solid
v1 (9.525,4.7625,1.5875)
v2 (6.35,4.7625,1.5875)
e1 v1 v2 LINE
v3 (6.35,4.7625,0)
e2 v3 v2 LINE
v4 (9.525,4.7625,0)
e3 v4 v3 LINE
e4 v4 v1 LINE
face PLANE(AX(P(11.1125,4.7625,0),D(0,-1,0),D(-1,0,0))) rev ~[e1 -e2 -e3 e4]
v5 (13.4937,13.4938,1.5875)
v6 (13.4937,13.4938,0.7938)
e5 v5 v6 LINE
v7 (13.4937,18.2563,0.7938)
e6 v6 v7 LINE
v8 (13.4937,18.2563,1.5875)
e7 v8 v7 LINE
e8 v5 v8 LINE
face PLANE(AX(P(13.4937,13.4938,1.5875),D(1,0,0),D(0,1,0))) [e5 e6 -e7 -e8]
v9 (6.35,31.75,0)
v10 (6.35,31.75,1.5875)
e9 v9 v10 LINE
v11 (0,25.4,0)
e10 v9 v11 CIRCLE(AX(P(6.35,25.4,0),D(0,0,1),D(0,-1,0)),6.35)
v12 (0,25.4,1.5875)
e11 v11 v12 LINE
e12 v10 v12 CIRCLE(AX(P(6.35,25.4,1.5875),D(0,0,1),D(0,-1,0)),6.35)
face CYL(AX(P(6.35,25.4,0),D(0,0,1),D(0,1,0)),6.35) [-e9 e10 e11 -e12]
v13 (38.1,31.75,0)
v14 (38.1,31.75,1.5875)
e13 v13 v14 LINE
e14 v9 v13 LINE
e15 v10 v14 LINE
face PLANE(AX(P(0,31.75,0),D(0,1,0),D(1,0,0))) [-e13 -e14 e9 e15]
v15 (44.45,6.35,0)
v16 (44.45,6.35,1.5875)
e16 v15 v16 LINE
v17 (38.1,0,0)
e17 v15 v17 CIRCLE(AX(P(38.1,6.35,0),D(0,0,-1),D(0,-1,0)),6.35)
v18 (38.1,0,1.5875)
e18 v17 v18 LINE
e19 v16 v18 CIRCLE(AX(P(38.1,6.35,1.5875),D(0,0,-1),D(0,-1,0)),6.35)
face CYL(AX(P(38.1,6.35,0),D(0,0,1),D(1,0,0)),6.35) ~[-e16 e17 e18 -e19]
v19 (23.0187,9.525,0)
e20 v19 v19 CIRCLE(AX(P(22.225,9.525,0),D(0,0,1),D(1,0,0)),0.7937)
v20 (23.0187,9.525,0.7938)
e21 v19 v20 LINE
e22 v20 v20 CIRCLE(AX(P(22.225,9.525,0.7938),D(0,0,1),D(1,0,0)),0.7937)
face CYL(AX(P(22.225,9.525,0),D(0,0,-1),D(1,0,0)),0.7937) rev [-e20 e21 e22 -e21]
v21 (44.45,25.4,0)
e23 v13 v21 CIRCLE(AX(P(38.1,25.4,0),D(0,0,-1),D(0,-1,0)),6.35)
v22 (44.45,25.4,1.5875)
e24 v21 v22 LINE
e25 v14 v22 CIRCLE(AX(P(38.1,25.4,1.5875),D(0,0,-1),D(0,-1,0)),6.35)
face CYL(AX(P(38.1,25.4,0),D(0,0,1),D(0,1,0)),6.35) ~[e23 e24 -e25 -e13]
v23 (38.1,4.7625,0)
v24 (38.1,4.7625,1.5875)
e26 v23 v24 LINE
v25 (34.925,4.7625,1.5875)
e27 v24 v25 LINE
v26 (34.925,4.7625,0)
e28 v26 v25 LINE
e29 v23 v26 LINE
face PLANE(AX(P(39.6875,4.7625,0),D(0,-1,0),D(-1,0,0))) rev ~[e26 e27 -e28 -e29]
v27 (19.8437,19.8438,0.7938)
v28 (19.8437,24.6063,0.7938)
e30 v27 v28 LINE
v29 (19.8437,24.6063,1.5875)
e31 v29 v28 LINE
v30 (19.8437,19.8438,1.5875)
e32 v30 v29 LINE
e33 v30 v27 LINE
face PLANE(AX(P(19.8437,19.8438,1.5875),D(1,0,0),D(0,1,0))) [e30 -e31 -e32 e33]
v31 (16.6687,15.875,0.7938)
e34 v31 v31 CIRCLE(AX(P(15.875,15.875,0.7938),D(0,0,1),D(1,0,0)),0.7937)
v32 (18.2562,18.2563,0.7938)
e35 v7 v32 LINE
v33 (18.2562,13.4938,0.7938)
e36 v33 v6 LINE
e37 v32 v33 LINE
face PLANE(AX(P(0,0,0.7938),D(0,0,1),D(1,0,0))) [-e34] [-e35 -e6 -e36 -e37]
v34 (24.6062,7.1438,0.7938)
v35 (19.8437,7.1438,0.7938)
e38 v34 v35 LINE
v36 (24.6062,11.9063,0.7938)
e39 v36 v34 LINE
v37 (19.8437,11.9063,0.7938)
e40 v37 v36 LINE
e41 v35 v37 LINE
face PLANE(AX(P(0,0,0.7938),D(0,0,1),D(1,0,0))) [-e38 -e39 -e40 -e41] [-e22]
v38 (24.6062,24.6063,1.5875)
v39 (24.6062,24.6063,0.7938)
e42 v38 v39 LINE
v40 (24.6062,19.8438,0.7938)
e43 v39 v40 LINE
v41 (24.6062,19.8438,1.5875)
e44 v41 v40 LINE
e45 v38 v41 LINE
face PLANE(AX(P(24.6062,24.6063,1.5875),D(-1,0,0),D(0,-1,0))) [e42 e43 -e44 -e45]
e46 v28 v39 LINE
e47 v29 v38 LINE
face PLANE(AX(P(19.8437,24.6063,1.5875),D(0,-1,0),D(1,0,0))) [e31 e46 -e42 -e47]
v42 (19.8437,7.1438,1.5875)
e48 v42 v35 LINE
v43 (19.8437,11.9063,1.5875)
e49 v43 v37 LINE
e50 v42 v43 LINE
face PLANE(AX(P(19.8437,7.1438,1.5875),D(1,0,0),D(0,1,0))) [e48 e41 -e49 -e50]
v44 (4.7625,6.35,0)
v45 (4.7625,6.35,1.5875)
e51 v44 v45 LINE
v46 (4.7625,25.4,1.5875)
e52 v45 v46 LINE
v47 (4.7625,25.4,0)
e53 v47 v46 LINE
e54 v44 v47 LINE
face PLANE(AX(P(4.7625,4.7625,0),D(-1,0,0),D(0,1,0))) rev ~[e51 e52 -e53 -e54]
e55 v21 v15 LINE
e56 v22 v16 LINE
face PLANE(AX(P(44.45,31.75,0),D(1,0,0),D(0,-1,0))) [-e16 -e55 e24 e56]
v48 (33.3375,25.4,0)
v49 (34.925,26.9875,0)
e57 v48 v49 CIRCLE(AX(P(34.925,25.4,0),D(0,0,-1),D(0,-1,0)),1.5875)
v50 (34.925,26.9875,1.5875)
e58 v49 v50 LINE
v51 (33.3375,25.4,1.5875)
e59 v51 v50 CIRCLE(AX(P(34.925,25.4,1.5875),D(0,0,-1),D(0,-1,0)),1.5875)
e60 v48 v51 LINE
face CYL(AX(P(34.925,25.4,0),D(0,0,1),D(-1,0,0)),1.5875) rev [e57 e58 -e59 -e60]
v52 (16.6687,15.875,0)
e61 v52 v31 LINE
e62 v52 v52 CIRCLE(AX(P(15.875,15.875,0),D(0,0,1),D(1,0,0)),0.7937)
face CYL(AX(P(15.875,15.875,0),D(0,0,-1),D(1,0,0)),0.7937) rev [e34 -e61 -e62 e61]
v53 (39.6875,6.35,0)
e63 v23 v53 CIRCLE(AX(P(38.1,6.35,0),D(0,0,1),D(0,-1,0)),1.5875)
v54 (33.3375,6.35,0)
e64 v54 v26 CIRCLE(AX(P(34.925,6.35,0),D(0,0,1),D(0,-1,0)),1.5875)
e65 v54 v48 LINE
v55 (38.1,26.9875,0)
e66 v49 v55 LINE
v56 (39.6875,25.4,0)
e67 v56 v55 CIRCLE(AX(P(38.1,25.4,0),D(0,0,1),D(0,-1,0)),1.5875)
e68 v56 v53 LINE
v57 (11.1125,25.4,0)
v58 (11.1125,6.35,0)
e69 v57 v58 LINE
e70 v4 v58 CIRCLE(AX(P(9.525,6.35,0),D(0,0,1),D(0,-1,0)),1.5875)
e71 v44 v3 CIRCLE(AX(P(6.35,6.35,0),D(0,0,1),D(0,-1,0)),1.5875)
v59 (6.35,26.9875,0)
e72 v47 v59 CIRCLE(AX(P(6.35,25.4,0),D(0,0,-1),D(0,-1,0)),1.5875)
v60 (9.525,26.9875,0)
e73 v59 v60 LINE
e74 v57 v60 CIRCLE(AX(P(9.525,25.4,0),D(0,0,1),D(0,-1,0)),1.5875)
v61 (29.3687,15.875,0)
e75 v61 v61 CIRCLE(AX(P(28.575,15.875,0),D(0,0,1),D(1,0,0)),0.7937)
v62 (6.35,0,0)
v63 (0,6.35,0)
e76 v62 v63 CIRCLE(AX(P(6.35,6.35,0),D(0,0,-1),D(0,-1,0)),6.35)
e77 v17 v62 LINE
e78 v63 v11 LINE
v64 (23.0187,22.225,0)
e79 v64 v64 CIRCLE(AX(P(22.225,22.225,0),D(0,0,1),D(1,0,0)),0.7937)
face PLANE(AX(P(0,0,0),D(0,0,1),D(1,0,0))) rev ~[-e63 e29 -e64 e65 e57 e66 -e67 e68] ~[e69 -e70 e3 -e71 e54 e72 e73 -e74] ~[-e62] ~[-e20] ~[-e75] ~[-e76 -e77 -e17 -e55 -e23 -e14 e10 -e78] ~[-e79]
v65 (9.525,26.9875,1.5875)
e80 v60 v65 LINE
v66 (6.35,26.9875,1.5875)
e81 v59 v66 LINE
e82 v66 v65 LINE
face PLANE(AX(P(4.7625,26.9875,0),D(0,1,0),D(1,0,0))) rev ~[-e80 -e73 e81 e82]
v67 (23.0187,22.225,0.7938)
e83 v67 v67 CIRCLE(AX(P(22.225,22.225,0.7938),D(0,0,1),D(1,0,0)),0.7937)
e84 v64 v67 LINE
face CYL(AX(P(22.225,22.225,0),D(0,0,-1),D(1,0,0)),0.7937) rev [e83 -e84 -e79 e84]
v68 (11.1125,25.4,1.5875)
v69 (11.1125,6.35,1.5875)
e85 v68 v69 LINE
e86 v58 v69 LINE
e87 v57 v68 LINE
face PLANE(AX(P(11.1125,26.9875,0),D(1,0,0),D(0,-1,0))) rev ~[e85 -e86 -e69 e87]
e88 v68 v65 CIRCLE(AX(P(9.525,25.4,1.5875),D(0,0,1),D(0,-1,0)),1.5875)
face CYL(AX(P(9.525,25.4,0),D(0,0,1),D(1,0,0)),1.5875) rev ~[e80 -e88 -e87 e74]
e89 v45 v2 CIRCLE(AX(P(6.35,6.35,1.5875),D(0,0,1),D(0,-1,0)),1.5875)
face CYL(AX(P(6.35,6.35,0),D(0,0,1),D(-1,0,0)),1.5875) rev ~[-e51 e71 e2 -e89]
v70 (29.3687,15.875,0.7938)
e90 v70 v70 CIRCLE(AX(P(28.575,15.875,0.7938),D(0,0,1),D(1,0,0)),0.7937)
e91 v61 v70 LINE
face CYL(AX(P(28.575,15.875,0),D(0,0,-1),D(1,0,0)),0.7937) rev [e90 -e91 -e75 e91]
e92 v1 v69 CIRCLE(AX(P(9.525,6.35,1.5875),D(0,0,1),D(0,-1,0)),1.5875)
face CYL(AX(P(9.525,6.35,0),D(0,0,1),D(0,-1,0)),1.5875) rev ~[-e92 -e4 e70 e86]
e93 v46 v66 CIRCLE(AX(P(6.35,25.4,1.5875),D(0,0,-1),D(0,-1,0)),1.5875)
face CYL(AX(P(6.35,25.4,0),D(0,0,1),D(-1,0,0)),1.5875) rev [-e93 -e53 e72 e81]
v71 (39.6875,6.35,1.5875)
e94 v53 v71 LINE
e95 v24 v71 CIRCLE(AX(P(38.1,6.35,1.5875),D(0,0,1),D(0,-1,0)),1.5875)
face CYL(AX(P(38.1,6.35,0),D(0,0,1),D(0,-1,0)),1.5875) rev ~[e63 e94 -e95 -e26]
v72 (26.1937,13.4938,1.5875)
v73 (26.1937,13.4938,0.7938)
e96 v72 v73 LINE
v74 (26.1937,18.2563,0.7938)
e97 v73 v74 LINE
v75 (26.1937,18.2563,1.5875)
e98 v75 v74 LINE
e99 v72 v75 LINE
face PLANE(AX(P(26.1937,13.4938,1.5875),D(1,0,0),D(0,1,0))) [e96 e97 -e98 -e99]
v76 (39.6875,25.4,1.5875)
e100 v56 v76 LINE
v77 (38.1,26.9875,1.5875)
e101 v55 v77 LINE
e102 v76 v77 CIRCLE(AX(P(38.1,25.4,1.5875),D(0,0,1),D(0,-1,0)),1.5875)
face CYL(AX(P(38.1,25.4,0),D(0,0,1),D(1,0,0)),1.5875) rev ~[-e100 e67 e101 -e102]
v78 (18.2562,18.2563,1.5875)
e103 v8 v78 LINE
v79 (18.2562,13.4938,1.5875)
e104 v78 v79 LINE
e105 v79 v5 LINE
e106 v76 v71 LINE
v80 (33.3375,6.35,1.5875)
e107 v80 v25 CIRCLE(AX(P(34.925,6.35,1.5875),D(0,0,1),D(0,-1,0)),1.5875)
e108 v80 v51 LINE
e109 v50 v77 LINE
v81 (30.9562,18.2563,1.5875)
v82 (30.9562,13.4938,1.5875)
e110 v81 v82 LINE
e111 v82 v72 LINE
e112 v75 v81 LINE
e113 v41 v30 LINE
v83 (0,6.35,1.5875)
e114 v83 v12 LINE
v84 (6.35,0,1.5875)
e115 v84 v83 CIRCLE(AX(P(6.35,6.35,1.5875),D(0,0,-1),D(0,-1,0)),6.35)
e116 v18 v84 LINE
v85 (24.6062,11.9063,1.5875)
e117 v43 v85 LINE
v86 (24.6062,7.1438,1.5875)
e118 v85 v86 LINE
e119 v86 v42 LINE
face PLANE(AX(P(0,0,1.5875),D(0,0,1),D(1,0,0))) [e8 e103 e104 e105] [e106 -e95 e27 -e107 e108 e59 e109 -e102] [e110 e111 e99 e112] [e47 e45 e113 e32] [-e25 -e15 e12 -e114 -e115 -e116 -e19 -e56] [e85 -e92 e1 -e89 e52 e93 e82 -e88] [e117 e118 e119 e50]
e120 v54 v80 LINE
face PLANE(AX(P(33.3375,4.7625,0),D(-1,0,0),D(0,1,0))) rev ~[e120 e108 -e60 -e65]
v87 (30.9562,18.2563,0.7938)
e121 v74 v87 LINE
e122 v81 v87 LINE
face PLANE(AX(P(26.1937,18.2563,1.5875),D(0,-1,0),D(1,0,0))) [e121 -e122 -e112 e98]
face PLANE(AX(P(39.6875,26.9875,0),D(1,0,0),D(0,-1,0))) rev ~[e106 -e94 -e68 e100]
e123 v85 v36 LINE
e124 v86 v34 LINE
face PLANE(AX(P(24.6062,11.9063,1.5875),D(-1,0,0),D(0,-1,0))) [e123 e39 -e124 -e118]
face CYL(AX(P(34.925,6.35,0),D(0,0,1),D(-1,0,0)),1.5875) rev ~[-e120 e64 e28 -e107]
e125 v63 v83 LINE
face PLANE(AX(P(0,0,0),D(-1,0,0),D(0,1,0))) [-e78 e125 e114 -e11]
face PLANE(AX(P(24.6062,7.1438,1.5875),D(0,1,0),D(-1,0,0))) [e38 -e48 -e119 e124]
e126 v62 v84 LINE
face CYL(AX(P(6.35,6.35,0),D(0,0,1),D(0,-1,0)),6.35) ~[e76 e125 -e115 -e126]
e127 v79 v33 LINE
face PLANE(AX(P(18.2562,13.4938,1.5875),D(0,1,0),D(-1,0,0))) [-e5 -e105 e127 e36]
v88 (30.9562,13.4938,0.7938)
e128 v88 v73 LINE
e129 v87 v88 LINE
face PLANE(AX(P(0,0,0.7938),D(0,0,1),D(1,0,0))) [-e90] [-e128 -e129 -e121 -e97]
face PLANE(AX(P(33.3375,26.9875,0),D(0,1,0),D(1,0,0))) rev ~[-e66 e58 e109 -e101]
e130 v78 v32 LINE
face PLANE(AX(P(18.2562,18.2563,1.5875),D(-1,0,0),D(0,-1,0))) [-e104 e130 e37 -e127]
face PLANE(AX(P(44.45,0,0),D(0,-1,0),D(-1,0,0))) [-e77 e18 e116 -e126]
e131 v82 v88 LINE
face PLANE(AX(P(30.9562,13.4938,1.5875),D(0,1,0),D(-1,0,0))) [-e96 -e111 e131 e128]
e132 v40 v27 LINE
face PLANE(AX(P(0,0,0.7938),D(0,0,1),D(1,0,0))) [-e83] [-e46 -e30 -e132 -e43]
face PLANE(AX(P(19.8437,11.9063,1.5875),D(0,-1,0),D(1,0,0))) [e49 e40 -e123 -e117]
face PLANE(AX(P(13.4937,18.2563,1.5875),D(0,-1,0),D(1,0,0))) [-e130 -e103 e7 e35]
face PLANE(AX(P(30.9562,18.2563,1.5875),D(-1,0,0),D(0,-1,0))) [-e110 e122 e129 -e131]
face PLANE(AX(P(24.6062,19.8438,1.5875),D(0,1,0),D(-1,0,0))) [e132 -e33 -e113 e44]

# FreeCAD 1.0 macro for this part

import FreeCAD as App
import Part
import Sketcher

V = App.Vector
Q = App.Units.Quantity


def edges_at(feature, points):
    """Names of the edges that pass closest to the given points."""
    edges = feature.Shape.Edges
    near = lambda p: min(range(len(edges)), key=lambda i: edges[i].distToShape(Part.Vertex(*p))[0])
    return sorted({f"Edge{near(p) + 1}" for p in points})

doc = App.newDocument("Part")
body = doc.addObject("PartDesign::Body", "Body")

# Sketch on XY plane
sketch1 = doc.addObject("Sketcher::SketchObject", "Sketch")
body.addObject(sketch1)
sketch1.AttachmentSupport = (doc.XY_Plane, [""])
sketch1.MapMode = "FlatFace"
sketch1.addGeometry(Part.LineSegment(V(44.5, 31.8, 0), V(0, 31.8, 0)), False)
sketch1.addGeometry(Part.LineSegment(V(0, 31.8, 0), V(0, 0, 0)), False)
sketch1.addGeometry(Part.LineSegment(V(0, 0, 0), V(44.5, 0, 0)), False)
sketch1.addGeometry(Part.LineSegment(V(44.5, 0, 0), V(44.5, 31.8, 0)), False)
sketch1.addGeometry(Part.Circle(V(22.2, 9.5, 0), V(0, 0, 1), 0.8), False)
sketch1.addGeometry(Part.LineSegment(V(4.8, 4.8, 0), V(4.8, 27, 0)), False)
sketch1.addGeometry(Part.LineSegment(V(4.8, 27, 0), V(11.1, 27, 0)), False)
sketch1.addGeometry(Part.LineSegment(V(11.1, 27, 0), V(11.1, 4.8, 0)), False)
sketch1.addGeometry(Part.LineSegment(V(11.1, 4.8, 0), V(4.8, 4.8, 0)), False)
sketch1.addGeometry(Part.Circle(V(15.9, 15.9, 0), V(0, 0, 1), 0.8), False)
sketch1.addGeometry(Part.Circle(V(28.6, 15.9, 0), V(0, 0, 1), 0.8), False)
sketch1.addGeometry(Part.Circle(V(22.2, 22.2, 0), V(0, 0, 1), 0.8), False)
sketch1.addGeometry(Part.LineSegment(V(33.3, 4.8, 0), V(33.3, 27, 0)), False)
sketch1.addGeometry(Part.LineSegment(V(33.3, 27, 0), V(39.7, 27, 0)), False)
sketch1.addGeometry(Part.LineSegment(V(39.7, 27, 0), V(39.7, 4.8, 0)), False)
sketch1.addGeometry(Part.LineSegment(V(39.7, 4.8, 0), V(33.3, 4.8, 0)), False)
sketch1.addConstraint(Sketcher.Constraint("Coincident", 0, 2, 1, 1))
sketch1.addConstraint(Sketcher.Constraint("Coincident", 1, 2, 2, 1))
sketch1.addConstraint(Sketcher.Constraint("Coincident", 2, 2, 3, 1))
sketch1.addConstraint(Sketcher.Constraint("Coincident", 3, 2, 0, 1))
sketch1.addConstraint(Sketcher.Constraint("Coincident", 5, 2, 6, 1))
sketch1.addConstraint(Sketcher.Constraint("Coincident", 6, 2, 7, 1))
sketch1.addConstraint(Sketcher.Constraint("Coincident", 7, 2, 8, 1))
sketch1.addConstraint(Sketcher.Constraint("Coincident", 8, 2, 5, 1))
sketch1.addConstraint(Sketcher.Constraint("Coincident", 12, 2, 13, 1))
sketch1.addConstraint(Sketcher.Constraint("Coincident", 13, 2, 14, 1))
sketch1.addConstraint(Sketcher.Constraint("Coincident", 14, 2, 15, 1))
sketch1.addConstraint(Sketcher.Constraint("Coincident", 15, 2, 12, 1))
sketch1.addConstraint(Sketcher.Constraint("Horizontal", 0))
sketch1.addConstraint(Sketcher.Constraint("Vertical", 1))
sketch1.addConstraint(Sketcher.Constraint("Horizontal", 2))
sketch1.addConstraint(Sketcher.Constraint("Vertical", 3))
sketch1.addConstraint(Sketcher.Constraint("Vertical", 5))
sketch1.addConstraint(Sketcher.Constraint("Horizontal", 6))
sketch1.addConstraint(Sketcher.Constraint("Vertical", 7))
sketch1.addConstraint(Sketcher.Constraint("Horizontal", 8))
sketch1.addConstraint(Sketcher.Constraint("Vertical", 12))
sketch1.addConstraint(Sketcher.Constraint("Horizontal", 13))
sketch1.addConstraint(Sketcher.Constraint("Vertical", 14))
sketch1.addConstraint(Sketcher.Constraint("Horizontal", 15))
sketch1.addConstraint(Sketcher.Constraint("Coincident", 1, 2, -1, 1))
sketch1.addConstraint(Sketcher.Constraint("Equal", 4, 9))
sketch1.addConstraint(Sketcher.Constraint("Equal", 9, 10))
sketch1.addConstraint(Sketcher.Constraint("Equal", 10, 11))
sketch1.addConstraint(Sketcher.Constraint("Horizontal", 9, 3, 10, 3))
sketch1.addConstraint(Sketcher.Constraint("Horizontal", 6, 2, 12, 2))
sketch1.addConstraint(Sketcher.Constraint("Horizontal", 8, 2, 14, 2))
sketch1.addConstraint(Sketcher.Constraint("Vertical", 4, 3, 11, 3))
sketch1.addConstraint(Sketcher.Constraint("Equal", 8, 13))
sketch1.addConstraint(Sketcher.Constraint("Diameter", 4, Q("0.0625 in")))
sketch1.addConstraint(Sketcher.Constraint("DistanceX", 0, 2, 0, 1, Q("1.75 in")))
sketch1.addConstraint(Sketcher.Constraint("DistanceX", 6, 1, 6, 2, Q("0.25 in")))
sketch1.addConstraint(Sketcher.Constraint("DistanceY", 1, 2, 1, 1, Q("1.25 in")))
sketch1.addConstraint(Sketcher.Constraint("DistanceX", 9, 3, 10, 3, Q("0.5 in")))
sketch1.addConstraint(Sketcher.Constraint("DistanceY", 4, 3, 11, 3, Q("0.5 in")))
sketch1.addConstraint(Sketcher.Constraint("DistanceY", 5, 1, 5, 2, Q("0.875 in")))
sketch1.addConstraint(Sketcher.Constraint("DistanceX", 9, 3, 4, 3, Q("0.25 in")))
sketch1.addConstraint(Sketcher.Constraint("DistanceY", 4, 3, 9, 3, Q("0.25 in")))
sketch1.addConstraint(Sketcher.Constraint("DistanceX", -1, 1, 4, 3, Q("0.875 in")))
sketch1.addConstraint(Sketcher.Constraint("DistanceY", -1, 1, 9, 3, Q("0.625 in")))
sketch1.addConstraint(Sketcher.Constraint("DistanceX", -1, 1, 5, 2, Q("0.1875 in")))
sketch1.addConstraint(Sketcher.Constraint("DistanceY", -1, 1, 7, 2, Q("0.1875 in")))
sketch1.addConstraint(Sketcher.Constraint("DistanceX", 10, 3, 12, 2, Q("0.1875 in")))
pad1 = doc.addObject("PartDesign::Pad", "Pad")
body.addObject(pad1)
pad1.Profile = sketch1
pad1.Length = Q("0.0625 in")
doc.recompute()

fillet = doc.addObject("PartDesign::Fillet", "Fillet")
body.addObject(fillet)
fillet.Base = (pad1, edges_at(pad1, [
    (0, 31.75, 0.794),
    (0, 0, 0.794),
    (44.45, 0, 0.794),
    (44.45, 31.75, 0.794),
]))
fillet.Radius = Q("0.25 in")
doc.recompute()

fillet2 = doc.addObject("PartDesign::Fillet", "Fillet001")
body.addObject(fillet2)
fillet2.Base = (fillet, edges_at(fillet, [
    (4.763, 4.763, 0.794),
    (11.113, 4.763, 0.794),
    (33.337, 4.763, 0.794),
    (4.763, 26.988, 0.794),
    (11.113, 26.988, 0.794),
    (39.688, 26.988, 0.794),
    (33.337, 26.988, 0.794),
    (39.688, 4.763, 0.794),
]))
fillet2.Radius = Q("0.0625 in")

# Sketch on XY plane
sketch2 = doc.addObject("Sketcher::SketchObject", "Sketch001")
body.addObject(sketch2)
sketch2.AttachmentSupport = (doc.XY_Plane, [""])
sketch2.MapMode = "FlatFace"
sketch2.AttachmentOffset = App.Placement(V(0, 0, 0.0625 * 25.4), App.Rotation())
sketch2.addGeometry(Part.LineSegment(V(18.3, 18.3, 0), V(13.5, 18.3, 0)), False)
sketch2.addGeometry(Part.LineSegment(V(13.5, 18.3, 0), V(13.5, 13.5, 0)), False)
sketch2.addGeometry(Part.LineSegment(V(13.5, 13.5, 0), V(18.3, 13.5, 0)), False)
sketch2.addGeometry(Part.LineSegment(V(18.3, 13.5, 0), V(18.3, 18.3, 0)), False)
sketch2.addGeometry(Part.Circle(V(15.9, 15.9, 0), V(0, 0, 1), 0.8), False)
sketch2.addGeometry(Part.LineSegment(V(24.6, 24.6, 0), V(19.8, 24.6, 0)), False)
sketch2.addGeometry(Part.LineSegment(V(19.8, 24.6, 0), V(19.8, 19.8, 0)), False)
sketch2.addGeometry(Part.LineSegment(V(19.8, 19.8, 0), V(24.6, 19.8, 0)), False)
sketch2.addGeometry(Part.LineSegment(V(24.6, 19.8, 0), V(24.6, 24.6, 0)), False)
sketch2.addGeometry(Part.Circle(V(22.2, 22.2, 0), V(0, 0, 1), 0.8), False)
sketch2.addGeometry(Part.LineSegment(V(31, 18.3, 0), V(26.2, 18.3, 0)), False)
sketch2.addGeometry(Part.LineSegment(V(26.2, 18.3, 0), V(26.2, 13.5, 0)), False)
sketch2.addGeometry(Part.LineSegment(V(26.2, 13.5, 0), V(31, 13.5, 0)), False)
sketch2.addGeometry(Part.LineSegment(V(31, 13.5, 0), V(31, 18.3, 0)), False)
sketch2.addGeometry(Part.Circle(V(28.6, 15.9, 0), V(0, 0, 1), 0.8), False)
sketch2.addGeometry(Part.LineSegment(V(24.6, 11.9, 0), V(19.8, 11.9, 0)), False)
sketch2.addGeometry(Part.LineSegment(V(19.8, 11.9, 0), V(19.8, 7.1, 0)), False)
sketch2.addGeometry(Part.LineSegment(V(19.8, 7.1, 0), V(24.6, 7.1, 0)), False)
sketch2.addGeometry(Part.LineSegment(V(24.6, 7.1, 0), V(24.6, 11.9, 0)), False)
sketch2.addGeometry(Part.Circle(V(22.2, 9.5, 0), V(0, 0, 1), 0.8), False)
sketch2.addConstraint(Sketcher.Constraint("Coincident", 0, 2, 1, 1))
sketch2.addConstraint(Sketcher.Constraint("Coincident", 1, 2, 2, 1))
sketch2.addConstraint(Sketcher.Constraint("Coincident", 2, 2, 3, 1))
sketch2.addConstraint(Sketcher.Constraint("Coincident", 3, 2, 0, 1))
sketch2.addConstraint(Sketcher.Constraint("Coincident", 5, 2, 6, 1))
sketch2.addConstraint(Sketcher.Constraint("Coincident", 6, 2, 7, 1))
sketch2.addConstraint(Sketcher.Constraint("Coincident", 7, 2, 8, 1))
sketch2.addConstraint(Sketcher.Constraint("Coincident", 8, 2, 5, 1))
sketch2.addConstraint(Sketcher.Constraint("Coincident", 10, 2, 11, 1))
sketch2.addConstraint(Sketcher.Constraint("Coincident", 11, 2, 12, 1))
sketch2.addConstraint(Sketcher.Constraint("Coincident", 12, 2, 13, 1))
sketch2.addConstraint(Sketcher.Constraint("Coincident", 13, 2, 10, 1))
sketch2.addConstraint(Sketcher.Constraint("Coincident", 15, 2, 16, 1))
sketch2.addConstraint(Sketcher.Constraint("Coincident", 16, 2, 17, 1))
sketch2.addConstraint(Sketcher.Constraint("Coincident", 17, 2, 18, 1))
sketch2.addConstraint(Sketcher.Constraint("Coincident", 18, 2, 15, 1))
sketch2.addConstraint(Sketcher.Constraint("Horizontal", 0))
sketch2.addConstraint(Sketcher.Constraint("Vertical", 1))
sketch2.addConstraint(Sketcher.Constraint("Horizontal", 2))
sketch2.addConstraint(Sketcher.Constraint("Vertical", 3))
sketch2.addConstraint(Sketcher.Constraint("Horizontal", 5))
sketch2.addConstraint(Sketcher.Constraint("Vertical", 6))
sketch2.addConstraint(Sketcher.Constraint("Horizontal", 7))
sketch2.addConstraint(Sketcher.Constraint("Vertical", 8))
sketch2.addConstraint(Sketcher.Constraint("Horizontal", 10))
sketch2.addConstraint(Sketcher.Constraint("Vertical", 11))
sketch2.addConstraint(Sketcher.Constraint("Horizontal", 12))
sketch2.addConstraint(Sketcher.Constraint("Vertical", 13))
sketch2.addConstraint(Sketcher.Constraint("Horizontal", 15))
sketch2.addConstraint(Sketcher.Constraint("Vertical", 16))
sketch2.addConstraint(Sketcher.Constraint("Horizontal", 17))
sketch2.addConstraint(Sketcher.Constraint("Vertical", 18))
sketch2.addConstraint(Sketcher.Constraint("Equal", 4, 9))
sketch2.addConstraint(Sketcher.Constraint("Equal", 9, 14))
sketch2.addConstraint(Sketcher.Constraint("Equal", 14, 19))
sketch2.addConstraint(Sketcher.Constraint("Horizontal", 4, 3, 14, 3))
sketch2.addConstraint(Sketcher.Constraint("Horizontal", 3, 2, 10, 2))
sketch2.addConstraint(Sketcher.Constraint("Horizontal", 2, 2, 11, 2))
sketch2.addConstraint(Sketcher.Constraint("Vertical", 9, 3, 19, 3))
sketch2.addConstraint(Sketcher.Constraint("Vertical", 6, 2, 15, 2))
sketch2.addConstraint(Sketcher.Constraint("Vertical", 8, 2, 17, 2))
sketch2.addConstraint(Sketcher.Constraint("Equal", 2, 5))
sketch2.addConstraint(Sketcher.Constraint("Equal", 7, 10))
sketch2.addConstraint(Sketcher.Constraint("Equal", 17, 1))
sketch2.addConstraint(Sketcher.Constraint("Equal", 3, 6))
sketch2.addConstraint(Sketcher.Constraint("Equal", 13, 16))
sketch2.addConstraint(Sketcher.Constraint("DistanceX", 0, 2, 0, 1, Q("0.1875 in")))
sketch2.addConstraint(Sketcher.Constraint("Diameter", 4, Q("0.0625 in")))
sketch2.addConstraint(Sketcher.Constraint("DistanceX", 0, 2, 4, 3, Q("0.093752 in")))
sketch2.addConstraint(Sketcher.Constraint("DistanceY", 4, 3, 0, 2, Q("0.093752 in")))
sketch2.addConstraint(Sketcher.Constraint("DistanceX", 5, 2, 9, 3, Q("0.093752 in")))
sketch2.addConstraint(Sketcher.Constraint("DistanceY", 9, 3, 5, 2, Q("0.093752 in")))
sketch2.addConstraint(Sketcher.Constraint("DistanceX", 10, 2, 14, 3, Q("0.093752 in")))
sketch2.addConstraint(Sketcher.Constraint("DistanceY", 19, 3, 15, 2, Q("0.093752 in")))
sketch2.addConstraint(Sketcher.Constraint("DistanceX", 4, 3, 14, 3, Q("0.5 in")))
sketch2.addConstraint(Sketcher.Constraint("DistanceY", 19, 3, 9, 3, Q("0.5 in")))
sketch2.addConstraint(Sketcher.Constraint("DistanceX", 4, 3, 9, 3, Q("0.25 in")))
sketch2.addConstraint(Sketcher.Constraint("DistanceY", 4, 3, 9, 3, Q("0.25 in")))
sketch2.addConstraint(Sketcher.Constraint("DistanceX", -1, 1, 4, 3, Q("0.625 in")))
sketch2.addConstraint(Sketcher.Constraint("DistanceY", -1, 1, 4, 3, Q("0.625 in")))
pocket1 = doc.addObject("PartDesign::Pocket", "Pocket")
body.addObject(pocket1)
pocket1.Profile = sketch2
pocket1.Length = Q("0.031248 in")

doc.recompute()
